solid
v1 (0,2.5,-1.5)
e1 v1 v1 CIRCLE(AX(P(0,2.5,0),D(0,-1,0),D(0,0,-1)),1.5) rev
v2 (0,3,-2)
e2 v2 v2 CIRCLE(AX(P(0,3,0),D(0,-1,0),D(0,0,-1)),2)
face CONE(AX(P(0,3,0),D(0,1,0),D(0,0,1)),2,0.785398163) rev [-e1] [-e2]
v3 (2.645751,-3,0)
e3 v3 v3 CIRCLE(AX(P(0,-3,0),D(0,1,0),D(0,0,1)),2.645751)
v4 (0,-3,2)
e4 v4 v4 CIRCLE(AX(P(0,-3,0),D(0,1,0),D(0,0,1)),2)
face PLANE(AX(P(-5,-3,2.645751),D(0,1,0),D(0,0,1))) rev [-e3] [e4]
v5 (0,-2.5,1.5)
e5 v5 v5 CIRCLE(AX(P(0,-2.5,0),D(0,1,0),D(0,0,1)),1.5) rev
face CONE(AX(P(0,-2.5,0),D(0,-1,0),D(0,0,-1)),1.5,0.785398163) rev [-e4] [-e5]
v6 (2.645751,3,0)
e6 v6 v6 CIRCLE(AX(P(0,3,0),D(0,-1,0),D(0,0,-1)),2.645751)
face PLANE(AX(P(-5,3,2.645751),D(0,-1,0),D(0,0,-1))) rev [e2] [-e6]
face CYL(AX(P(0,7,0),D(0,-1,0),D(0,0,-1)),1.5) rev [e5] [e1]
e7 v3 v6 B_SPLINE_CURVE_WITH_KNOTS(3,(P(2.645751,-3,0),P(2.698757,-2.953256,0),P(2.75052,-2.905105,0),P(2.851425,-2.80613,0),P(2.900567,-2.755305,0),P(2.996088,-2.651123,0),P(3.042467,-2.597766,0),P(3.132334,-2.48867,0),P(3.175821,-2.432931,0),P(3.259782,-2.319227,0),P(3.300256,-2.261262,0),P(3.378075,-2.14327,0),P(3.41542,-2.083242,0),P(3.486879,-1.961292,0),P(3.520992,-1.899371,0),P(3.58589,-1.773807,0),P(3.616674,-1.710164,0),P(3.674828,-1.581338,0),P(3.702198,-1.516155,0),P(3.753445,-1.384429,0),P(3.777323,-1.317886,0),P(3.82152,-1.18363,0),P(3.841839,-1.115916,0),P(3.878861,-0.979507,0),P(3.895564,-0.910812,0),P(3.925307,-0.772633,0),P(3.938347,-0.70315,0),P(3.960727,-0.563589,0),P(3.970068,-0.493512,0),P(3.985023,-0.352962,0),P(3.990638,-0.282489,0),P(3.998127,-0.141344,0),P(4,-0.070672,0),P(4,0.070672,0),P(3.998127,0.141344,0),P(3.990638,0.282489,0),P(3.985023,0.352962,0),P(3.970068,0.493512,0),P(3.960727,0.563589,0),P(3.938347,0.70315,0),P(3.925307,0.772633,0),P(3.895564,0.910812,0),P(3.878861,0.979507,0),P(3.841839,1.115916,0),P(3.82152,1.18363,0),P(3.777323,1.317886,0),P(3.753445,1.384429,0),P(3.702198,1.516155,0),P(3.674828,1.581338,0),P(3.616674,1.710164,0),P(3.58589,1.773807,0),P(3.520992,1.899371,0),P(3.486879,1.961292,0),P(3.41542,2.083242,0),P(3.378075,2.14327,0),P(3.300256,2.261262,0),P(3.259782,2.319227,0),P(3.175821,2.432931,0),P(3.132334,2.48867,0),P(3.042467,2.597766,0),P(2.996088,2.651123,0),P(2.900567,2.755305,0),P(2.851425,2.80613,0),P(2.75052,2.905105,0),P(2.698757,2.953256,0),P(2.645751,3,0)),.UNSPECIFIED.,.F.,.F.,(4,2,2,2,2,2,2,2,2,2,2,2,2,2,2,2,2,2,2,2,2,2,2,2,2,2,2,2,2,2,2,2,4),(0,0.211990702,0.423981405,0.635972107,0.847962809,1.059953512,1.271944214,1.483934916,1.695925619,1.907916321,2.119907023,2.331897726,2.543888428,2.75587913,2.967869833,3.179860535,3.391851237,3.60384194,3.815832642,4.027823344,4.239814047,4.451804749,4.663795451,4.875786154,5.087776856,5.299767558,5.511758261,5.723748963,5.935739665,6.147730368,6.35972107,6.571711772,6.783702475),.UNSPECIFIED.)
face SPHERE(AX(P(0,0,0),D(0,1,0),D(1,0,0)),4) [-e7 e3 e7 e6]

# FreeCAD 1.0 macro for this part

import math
import FreeCAD as App
import Part
import Sketcher


def edges_at(feature, points):
    """Names of the edges that pass closest to the given points."""
    edges = feature.Shape.Edges
    near = lambda p: min(range(len(edges)), key=lambda i: edges[i].distToShape(Part.Vertex(*p))[0])
    return sorted({f"Edge{near(p) + 1}" for p in points})

doc = App.newDocument("Part")
body = doc.addObject("PartDesign::Body", "Body")

sketch1 = body.newObject("Sketcher::SketchObject", "Sketch")
sketch1.AttachmentSupport = (doc.getObject("XY_Plane"), [""])
sketch1.MapMode = "FlatFace"
sketch1.addGeometry([
    Part.LineSegment(App.Vector(0, 4, 0), App.Vector(0, -4, 0)),
    Part.ArcOfCircle(Part.Circle(App.Vector(0, 0, 0), App.Vector(0, 0, 1), 4), math.radians(-90), math.radians(90)),
], False)
sketch1.addConstraint([
    Sketcher.Constraint("Coincident", 0, 1, 1, 2),
    Sketcher.Constraint("Coincident", 1, 1, 0, 2),
    Sketcher.Constraint("Vertical", 0),
    Sketcher.Constraint("Coincident", 1, 3, -1, 1),
    Sketcher.Constraint("PointOnObject", 0, 1, -2),
    Sketcher.Constraint("Radius", 1, 4.0),
])
revolution = body.newObject("PartDesign::Revolution", "Revolution")
revolution.Profile = sketch1
revolution.ReferenceAxis = (sketch1, ["V_Axis"])
revolution.Angle = 360

sketch2 = body.newObject("Sketcher::SketchObject", "Sketch001")
sketch2.AttachmentSupport = (doc.getObject("YZ_Plane"), [""])
sketch2.MapMode = "FlatFace"
sketch2.addGeometry([
    Part.LineSegment(App.Vector(3, 2.6, 0), App.Vector(3, -2.6, 0)),
    Part.ArcOfCircle(Part.Circle(App.Vector(0, 0, 0), App.Vector(0, 0, 1), 4), math.radians(-41), math.radians(41)),
    Part.LineSegment(App.Vector(-3, -2.6, 0), App.Vector(-3, 2.6, 0)),
    Part.ArcOfCircle(Part.Circle(App.Vector(0, 0, 0), App.Vector(0, 0, 1), 4), math.radians(139), math.radians(221)),
], False)
sketch2.addConstraint([
    Sketcher.Constraint("Coincident", 0, 1, 1, 2),
    Sketcher.Constraint("Coincident", 1, 1, 0, 2),
    Sketcher.Constraint("Coincident", 2, 1, 3, 2),
    Sketcher.Constraint("Coincident", 3, 1, 2, 2),
    Sketcher.Constraint("Vertical", 0),
    Sketcher.Constraint("Vertical", 2),
    Sketcher.Constraint("Coincident", 1, 3, -1, 1),
    Sketcher.Constraint("Coincident", 3, 3, -1, 1),
    Sketcher.Constraint("Equal", 1, 3),
    Sketcher.Constraint("Horizontal", 1, 1, 2, 1),
    Sketcher.Constraint("Radius", 1, 4.0),
    Sketcher.Constraint("DistanceX", -1, 1, 0, 1, 3.0),
])
pocket1 = body.newObject("PartDesign::Pocket", "Pocket")
pocket1.Profile = sketch2
pocket1.Length = 10
pocket1.Midplane = True

sketch3 = body.newObject("Sketcher::SketchObject", "Sketch002")
sketch3.AttachmentSupport = (doc.getObject("XZ_Plane"), [""])
sketch3.MapMode = "FlatFace"
sketch3.AttachmentOffset = App.Placement(App.Vector(0, 0, 3), App.Rotation())
sketch3.addGeometry(Part.Circle(App.Vector(0, 0, 0), App.Vector(0, 0, 1), 1.5), False)
sketch3.addConstraint([
    Sketcher.Constraint("Coincident", 0, 3, -1, 1),
    Sketcher.Constraint("Diameter", 0, 3.0),
])
pocket2 = body.newObject("PartDesign::Pocket", "Pocket001")
pocket2.Profile = sketch3
pocket2.Length = 10
doc.recompute()

chamfer = body.newObject("PartDesign::Chamfer", "Chamfer")
chamfer.Base = (pocket2, edges_at(pocket2, [(0, 3, 1.5), (0, -3, 1.5)]))
chamfer.Size = 0.5

doc.recompute()
